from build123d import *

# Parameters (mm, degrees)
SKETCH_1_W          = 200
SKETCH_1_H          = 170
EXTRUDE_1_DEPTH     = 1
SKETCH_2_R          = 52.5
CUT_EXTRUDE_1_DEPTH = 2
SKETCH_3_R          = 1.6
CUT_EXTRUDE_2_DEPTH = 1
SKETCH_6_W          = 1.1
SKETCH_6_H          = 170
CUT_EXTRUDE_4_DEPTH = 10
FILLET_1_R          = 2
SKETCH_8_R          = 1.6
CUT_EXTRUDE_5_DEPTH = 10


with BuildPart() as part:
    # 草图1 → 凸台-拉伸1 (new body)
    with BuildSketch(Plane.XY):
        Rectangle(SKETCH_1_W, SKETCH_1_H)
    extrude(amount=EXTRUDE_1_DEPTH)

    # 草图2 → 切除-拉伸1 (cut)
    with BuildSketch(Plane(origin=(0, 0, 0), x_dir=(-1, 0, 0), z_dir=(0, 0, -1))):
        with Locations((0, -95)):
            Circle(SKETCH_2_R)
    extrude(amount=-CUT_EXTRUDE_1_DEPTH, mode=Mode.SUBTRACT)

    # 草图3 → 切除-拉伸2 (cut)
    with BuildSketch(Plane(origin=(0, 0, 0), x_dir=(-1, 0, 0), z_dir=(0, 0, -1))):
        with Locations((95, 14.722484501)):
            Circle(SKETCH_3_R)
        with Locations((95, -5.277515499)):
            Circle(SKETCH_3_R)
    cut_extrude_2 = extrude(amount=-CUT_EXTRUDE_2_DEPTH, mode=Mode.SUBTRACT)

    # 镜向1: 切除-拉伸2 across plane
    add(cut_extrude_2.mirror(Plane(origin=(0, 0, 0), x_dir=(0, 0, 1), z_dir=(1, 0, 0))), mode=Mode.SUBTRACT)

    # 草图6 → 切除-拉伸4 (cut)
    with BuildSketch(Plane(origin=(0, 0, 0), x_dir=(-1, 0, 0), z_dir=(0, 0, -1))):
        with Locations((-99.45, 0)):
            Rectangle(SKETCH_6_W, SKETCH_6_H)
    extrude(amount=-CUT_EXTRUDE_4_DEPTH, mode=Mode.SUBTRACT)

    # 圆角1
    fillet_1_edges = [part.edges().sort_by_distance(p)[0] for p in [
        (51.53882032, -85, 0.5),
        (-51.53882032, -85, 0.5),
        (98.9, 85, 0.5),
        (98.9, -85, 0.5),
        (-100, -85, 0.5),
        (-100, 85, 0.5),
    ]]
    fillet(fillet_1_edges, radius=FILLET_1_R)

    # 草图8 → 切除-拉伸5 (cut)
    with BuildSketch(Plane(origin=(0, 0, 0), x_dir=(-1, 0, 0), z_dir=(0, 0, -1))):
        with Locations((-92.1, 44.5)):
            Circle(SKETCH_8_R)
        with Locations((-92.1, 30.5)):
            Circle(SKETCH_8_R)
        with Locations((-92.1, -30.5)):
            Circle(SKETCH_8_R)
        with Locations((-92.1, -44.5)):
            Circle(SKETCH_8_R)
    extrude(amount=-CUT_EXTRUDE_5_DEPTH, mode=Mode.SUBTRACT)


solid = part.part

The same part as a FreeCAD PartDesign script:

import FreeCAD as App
import Part
import Sketcher

V = App.Vector


def edges_at(feature, points):
    """Names of the edges that pass closest to the given points."""
    edges = feature.Shape.Edges
    near = lambda p: min(range(len(edges)), key=lambda i: edges[i].distToShape(Part.Vertex(*p))[0])
    return sorted({f"Edge{near(p) + 1}" for p in points})

doc = App.newDocument("Part")
body = doc.addObject("PartDesign::Body", "Body")

sketch1 = doc.addObject("Sketcher::SketchObject", "Sketch")
body.addObject(sketch1)
sketch1.AttachmentSupport = (doc.XY_Plane, [""])
sketch1.MapMode = "FlatFace"
sketch1.addGeometry([
    Part.LineSegment(V(-100, 85, 0), V(-100, -85, 0)),
    Part.LineSegment(V(-100, -85, 0), V(100, -85, 0)),
    Part.LineSegment(V(100, -85, 0), V(100, 85, 0)),
    Part.LineSegment(V(100, 85, 0), V(-100, 85, 0)),
], False)
sketch1.addConstraint([
    Sketcher.Constraint("Coincident", 0, 2, 1, 1),
    Sketcher.Constraint("Coincident", 1, 2, 2, 1),
    Sketcher.Constraint("Coincident", 2, 2, 3, 1),
    Sketcher.Constraint("Coincident", 3, 2, 0, 1),
    Sketcher.Constraint("Vertical", 0),
    Sketcher.Constraint("Horizontal", 1),
    Sketcher.Constraint("Vertical", 2),
    Sketcher.Constraint("Horizontal", 3),
    Sketcher.Constraint("Symmetric", 0, 2, 2, 2, -1, 1),
    Sketcher.Constraint("DistanceX", 1, 1, 1, 2, 200.0),
    Sketcher.Constraint("DistanceY", 0, 2, 0, 1, 170.0),
])
pad1 = doc.addObject("PartDesign::Pad", "Pad")
body.addObject(pad1)
pad1.Profile = sketch1
pad1.Length = 1

sketch2 = doc.addObject("Sketcher::SketchObject", "Sketch001")
body.addObject(sketch2)
sketch2.AttachmentSupport = (doc.XY_Plane, [""])
sketch2.MapMode = "FlatFace"
sketch2.addGeometry(Part.Circle(V(0, -95, 0), V(0, 0, 1), 52), False)
sketch2.addConstraint([
    Sketcher.Constraint("PointOnObject", 0, 3, -2),
    Sketcher.Constraint("Diameter", 0, 105.0),
    Sketcher.Constraint("DistanceY", 0, 3, -1, 1, 95.0),
])
pocket1 = doc.addObject("PartDesign::Pocket", "Pocket")
body.addObject(pocket1)
pocket1.Profile = sketch2
pocket1.Length = 2
pocket1.Reversed = True

sketch3 = doc.addObject("Sketcher::SketchObject", "Sketch002")
body.addObject(sketch3)
sketch3.AttachmentSupport = (doc.XY_Plane, [""])
sketch3.MapMode = "FlatFace"
sketch3.addGeometry([
    Part.Circle(V(-95, 14.7, 0), V(0, 0, 1), 1.6),
    Part.Circle(V(-95, -5.3, 0), V(0, 0, 1), 1.6),
], False)
sketch3.addConstraint([
    Sketcher.Constraint("Equal", 0, 1),
    Sketcher.Constraint("Vertical", 0, 3, 1, 3),
    Sketcher.Constraint("Diameter", 0, 3.2),
    Sketcher.Constraint("DistanceX", 0, 3, -1, 1, 95.0),
    Sketcher.Constraint("DistanceY", 1, 3, 0, 3, 20.0),
    Sketcher.Constraint("DistanceY", -1, 1, 0, 3, 14.722485),
])
pocket2 = doc.addObject("PartDesign::Pocket", "Pocket001")
body.addObject(pocket2)
pocket2.Profile = sketch3
pocket2.Length = 1
pocket2.Reversed = True
doc.recompute()

mirrored = doc.addObject("PartDesign::Mirrored", "Mirrored")
body.addObject(mirrored)
mirrored.Originals = [pocket2]
mirrored.MirrorPlane = (doc.YZ_Plane, [""])
body.Tip = mirrored

sketch4 = doc.addObject("Sketcher::SketchObject", "Sketch003")
body.addObject(sketch4)
sketch4.AttachmentSupport = (doc.XY_Plane, [""])
sketch4.MapMode = "FlatFace"
sketch4.addGeometry([
    Part.LineSegment(V(100, 85, 0), V(100, -85, 0)),
    Part.LineSegment(V(100, -85, 0), V(98.9, -85, 0)),
    Part.LineSegment(V(98.9, -85, 0), V(98.9, 85, 0)),
    Part.LineSegment(V(98.9, 85, 0), V(100, 85, 0)),
], False)
sketch4.addConstraint([
    Sketcher.Constraint("Coincident", 0, 2, 1, 1),
    Sketcher.Constraint("Coincident", 1, 2, 2, 1),
    Sketcher.Constraint("Coincident", 2, 2, 3, 1),
    Sketcher.Constraint("Coincident", 3, 2, 0, 1),
    Sketcher.Constraint("Vertical", 0),
    Sketcher.Constraint("Horizontal", 1),
    Sketcher.Constraint("Vertical", 2),
    Sketcher.Constraint("Horizontal", 3),
    Sketcher.Constraint("DistanceY", 0, 2, 0, 1, 170.0),
    Sketcher.Constraint("DistanceX", 1, 2, 1, 1, 1.1),
    Sketcher.Constraint("DistanceX", -1, 1, 0, 2, 100.0),
    Sketcher.Constraint("DistanceY", 0, 2, -1, 1, 85.0),
])
pocket3 = doc.addObject("PartDesign::Pocket", "Pocket002")
body.addObject(pocket3)
pocket3.Profile = sketch4
pocket3.Length = 10
pocket3.Reversed = True
doc.recompute()

fillet = doc.addObject("PartDesign::Fillet", "Fillet")
body.addObject(fillet)
fillet.Base = (pocket3, edges_at(pocket3, [
    (51.539, -85, 0.5),
    (-51.539, -85, 0.5),
    (98.9, 85, 0.5),
    (98.9, -85, 0.5),
    (-100, -85, 0.5),
    (-100, 85, 0.5),
]))
fillet.Radius = 2

sketch5 = doc.addObject("Sketcher::SketchObject", "Sketch004")
body.addObject(sketch5)
sketch5.AttachmentSupport = (doc.XY_Plane, [""])
sketch5.MapMode = "FlatFace"
sketch5.addGeometry([
    Part.Circle(V(92.1, 44.5, 0), V(0, 0, 1), 1.6),
    Part.Circle(V(92.1, 30.5, 0), V(0, 0, 1), 1.6),
    Part.Circle(V(92.1, -30.5, 0), V(0, 0, 1), 1.6),
    Part.Circle(V(92.1, -44.5, 0), V(0, 0, 1), 1.6),
], False)
sketch5.addConstraint([
    Sketcher.Constraint("Equal", 0, 1),
    Sketcher.Constraint("Equal", 1, 2),
    Sketcher.Constraint("Equal", 2, 3),
    Sketcher.Constraint("Symmetric", 1, 3, 2, 3, -1),
    Sketcher.Constraint("Symmetric", 0, 3, 3, 3, -1),
    Sketcher.Constraint("Vertical", 0, 3, 1, 3),
    Sketcher.Constraint("Diameter", 0, 3.2),
    Sketcher.Constraint("DistanceY", 1, 3, 0, 3, 14.0),
    Sketcher.Constraint("DistanceY", 2, 3, 1, 3, 61.0),
    Sketcher.Constraint("DistanceX", -1, 1, 0, 3, 92.1),
])
pocket4 = doc.addObject("PartDesign::Pocket", "Pocket003")
body.addObject(pocket4)
pocket4.Profile = sketch5
pocket4.Length = 10
pocket4.Reversed = True

doc.recompute()
